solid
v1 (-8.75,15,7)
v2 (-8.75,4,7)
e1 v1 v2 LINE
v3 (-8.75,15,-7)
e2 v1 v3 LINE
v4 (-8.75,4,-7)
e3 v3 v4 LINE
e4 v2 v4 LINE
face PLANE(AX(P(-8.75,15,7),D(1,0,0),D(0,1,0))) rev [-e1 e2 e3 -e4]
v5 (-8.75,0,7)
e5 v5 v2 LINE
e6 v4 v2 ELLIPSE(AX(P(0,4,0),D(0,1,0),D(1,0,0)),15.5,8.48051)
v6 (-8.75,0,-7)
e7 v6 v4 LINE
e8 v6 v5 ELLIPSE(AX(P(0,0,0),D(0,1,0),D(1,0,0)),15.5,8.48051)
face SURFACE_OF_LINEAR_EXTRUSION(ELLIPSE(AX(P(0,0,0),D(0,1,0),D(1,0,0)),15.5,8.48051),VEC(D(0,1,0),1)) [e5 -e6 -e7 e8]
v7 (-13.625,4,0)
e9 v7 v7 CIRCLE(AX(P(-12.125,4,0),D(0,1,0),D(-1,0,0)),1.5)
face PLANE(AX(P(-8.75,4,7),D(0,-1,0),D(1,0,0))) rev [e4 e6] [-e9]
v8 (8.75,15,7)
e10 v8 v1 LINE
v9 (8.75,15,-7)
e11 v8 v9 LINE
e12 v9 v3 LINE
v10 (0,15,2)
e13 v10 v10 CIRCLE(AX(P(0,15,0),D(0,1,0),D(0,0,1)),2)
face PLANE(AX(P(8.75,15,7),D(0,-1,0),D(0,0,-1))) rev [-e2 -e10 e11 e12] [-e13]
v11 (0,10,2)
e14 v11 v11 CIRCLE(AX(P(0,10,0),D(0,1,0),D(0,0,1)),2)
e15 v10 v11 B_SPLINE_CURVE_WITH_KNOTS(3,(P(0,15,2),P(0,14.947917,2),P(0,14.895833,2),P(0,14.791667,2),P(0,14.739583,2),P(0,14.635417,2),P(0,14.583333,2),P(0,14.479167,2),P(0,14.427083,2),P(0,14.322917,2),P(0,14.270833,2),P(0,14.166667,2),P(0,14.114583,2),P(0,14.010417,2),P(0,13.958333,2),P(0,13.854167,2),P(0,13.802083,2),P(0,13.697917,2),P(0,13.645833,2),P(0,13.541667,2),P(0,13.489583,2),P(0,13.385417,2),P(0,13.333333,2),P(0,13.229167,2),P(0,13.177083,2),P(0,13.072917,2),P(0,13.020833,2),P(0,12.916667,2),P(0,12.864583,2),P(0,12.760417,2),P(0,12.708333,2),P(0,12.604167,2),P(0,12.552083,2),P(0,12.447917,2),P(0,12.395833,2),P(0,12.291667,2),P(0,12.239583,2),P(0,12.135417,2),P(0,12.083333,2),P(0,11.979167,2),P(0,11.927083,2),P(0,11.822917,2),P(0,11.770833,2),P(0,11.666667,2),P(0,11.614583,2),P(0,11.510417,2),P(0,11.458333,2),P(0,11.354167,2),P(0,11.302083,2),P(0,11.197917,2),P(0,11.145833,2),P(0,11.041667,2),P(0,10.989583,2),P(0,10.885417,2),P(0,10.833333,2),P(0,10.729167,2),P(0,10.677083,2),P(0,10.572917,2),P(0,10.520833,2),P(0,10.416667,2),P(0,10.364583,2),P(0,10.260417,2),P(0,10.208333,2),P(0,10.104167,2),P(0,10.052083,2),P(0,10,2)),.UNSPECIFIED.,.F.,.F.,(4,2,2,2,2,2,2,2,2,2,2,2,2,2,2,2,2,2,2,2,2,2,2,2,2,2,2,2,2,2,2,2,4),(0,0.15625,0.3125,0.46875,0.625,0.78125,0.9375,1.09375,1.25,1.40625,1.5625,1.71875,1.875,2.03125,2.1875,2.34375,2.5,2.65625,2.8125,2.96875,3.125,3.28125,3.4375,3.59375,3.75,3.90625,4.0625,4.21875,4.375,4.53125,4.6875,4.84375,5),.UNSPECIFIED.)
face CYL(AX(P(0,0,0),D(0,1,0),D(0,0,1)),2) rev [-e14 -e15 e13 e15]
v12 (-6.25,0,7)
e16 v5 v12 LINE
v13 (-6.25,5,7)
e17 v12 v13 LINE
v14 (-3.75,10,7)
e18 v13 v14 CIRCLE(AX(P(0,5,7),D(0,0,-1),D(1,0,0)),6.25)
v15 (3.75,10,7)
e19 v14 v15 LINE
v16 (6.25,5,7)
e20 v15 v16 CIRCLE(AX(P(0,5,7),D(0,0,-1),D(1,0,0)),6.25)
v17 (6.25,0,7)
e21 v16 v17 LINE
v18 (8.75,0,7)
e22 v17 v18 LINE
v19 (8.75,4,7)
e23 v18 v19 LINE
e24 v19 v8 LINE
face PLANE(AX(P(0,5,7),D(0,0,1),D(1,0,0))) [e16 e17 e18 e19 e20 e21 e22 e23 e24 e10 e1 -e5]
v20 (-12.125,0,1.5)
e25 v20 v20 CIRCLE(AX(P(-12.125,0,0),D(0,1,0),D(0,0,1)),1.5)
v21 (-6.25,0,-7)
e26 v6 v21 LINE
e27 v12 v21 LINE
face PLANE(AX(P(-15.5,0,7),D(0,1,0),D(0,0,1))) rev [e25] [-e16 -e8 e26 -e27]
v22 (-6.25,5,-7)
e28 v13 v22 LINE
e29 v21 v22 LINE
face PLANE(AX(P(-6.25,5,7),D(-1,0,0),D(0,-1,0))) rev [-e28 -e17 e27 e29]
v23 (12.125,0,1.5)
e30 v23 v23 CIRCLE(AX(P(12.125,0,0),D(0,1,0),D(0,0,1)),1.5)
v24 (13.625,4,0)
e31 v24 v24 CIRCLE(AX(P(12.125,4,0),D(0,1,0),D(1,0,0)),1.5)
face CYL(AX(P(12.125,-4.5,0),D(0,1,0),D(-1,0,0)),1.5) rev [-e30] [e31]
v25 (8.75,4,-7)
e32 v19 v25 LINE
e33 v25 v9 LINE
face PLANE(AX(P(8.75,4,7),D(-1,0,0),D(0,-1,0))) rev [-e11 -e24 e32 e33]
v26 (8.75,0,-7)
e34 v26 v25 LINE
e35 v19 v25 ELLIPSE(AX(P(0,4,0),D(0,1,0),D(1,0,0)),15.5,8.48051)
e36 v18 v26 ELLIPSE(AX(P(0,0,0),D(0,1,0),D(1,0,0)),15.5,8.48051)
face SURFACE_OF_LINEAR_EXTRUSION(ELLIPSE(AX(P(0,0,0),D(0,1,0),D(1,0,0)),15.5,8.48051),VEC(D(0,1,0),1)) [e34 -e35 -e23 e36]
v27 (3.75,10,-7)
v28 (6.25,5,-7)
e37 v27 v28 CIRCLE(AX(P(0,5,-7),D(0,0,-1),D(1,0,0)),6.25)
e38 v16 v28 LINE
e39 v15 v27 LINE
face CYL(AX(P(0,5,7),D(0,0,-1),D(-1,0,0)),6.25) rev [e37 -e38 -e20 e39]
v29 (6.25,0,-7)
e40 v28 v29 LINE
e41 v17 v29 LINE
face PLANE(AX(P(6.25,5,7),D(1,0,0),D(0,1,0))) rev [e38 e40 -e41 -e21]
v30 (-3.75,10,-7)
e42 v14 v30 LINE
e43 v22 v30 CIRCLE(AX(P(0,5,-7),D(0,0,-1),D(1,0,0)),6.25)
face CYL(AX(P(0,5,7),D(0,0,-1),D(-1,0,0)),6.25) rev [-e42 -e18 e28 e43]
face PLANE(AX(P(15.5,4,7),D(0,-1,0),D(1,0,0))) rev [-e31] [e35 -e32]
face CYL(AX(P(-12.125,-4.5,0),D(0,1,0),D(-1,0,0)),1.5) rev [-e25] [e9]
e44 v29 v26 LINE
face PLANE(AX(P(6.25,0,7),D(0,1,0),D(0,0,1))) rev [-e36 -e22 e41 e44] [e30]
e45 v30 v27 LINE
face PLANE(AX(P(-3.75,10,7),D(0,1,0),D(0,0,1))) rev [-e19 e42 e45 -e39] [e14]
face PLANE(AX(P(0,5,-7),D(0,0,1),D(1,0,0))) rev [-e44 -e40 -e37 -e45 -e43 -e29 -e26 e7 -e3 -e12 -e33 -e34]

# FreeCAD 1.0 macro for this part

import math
import FreeCAD as App
import Part
import Sketcher
Q = App.Units.Quantity

doc = App.newDocument("Part")
body = doc.addObject("PartDesign::Body", "Body")

# Sketch on XY plane
sketch1 = doc.addObject("Sketcher::SketchObject", "Sketch")
body.addObject(sketch1)
sketch1.AttachmentSupport = (doc.XY_Plane, [""])
sketch1.MapMode = "FlatFace"
sketch1.addGeometry([
    Part.LineSegment(App.Vector(-15.5, 0, 0), App.Vector(-6.25, 0, 0)),  # 0
    Part.LineSegment(App.Vector(-6.25, 0, 0), App.Vector(-6.25, 5, 0)),  # 1
    Part.ArcOfCircle(Part.Circle(App.Vector(0, 5, 0), App.Vector(0, 0, 1), 6.25), math.radians(126.869898), math.radians(180)),  # 2
    Part.LineSegment(App.Vector(-3.75, 10, 0), App.Vector(3.75, 10, 0)),  # 3
    Part.ArcOfCircle(Part.Circle(App.Vector(0, 5, 0), App.Vector(0, 0, 1), 6.25), math.radians(0), math.radians(53.130102)),  # 4
    Part.LineSegment(App.Vector(6.25, 5, 0), App.Vector(6.25, 0, 0)),  # 5
    Part.LineSegment(App.Vector(6.25, 0, 0), App.Vector(15.5, 0, 0)),  # 6
    Part.LineSegment(App.Vector(15.5, 0, 0), App.Vector(15.5, 4, 0)),  # 7
    Part.LineSegment(App.Vector(15.5, 4, 0), App.Vector(8.75, 4, 0)),  # 8
    Part.LineSegment(App.Vector(8.75, 4, 0), App.Vector(8.75, 15, 0)),  # 9
    Part.LineSegment(App.Vector(8.75, 15, 0), App.Vector(-8.75, 15, 0)),  # 10
    Part.LineSegment(App.Vector(-8.75, 15, 0), App.Vector(-8.75, 4, 0)),  # 11
    Part.LineSegment(App.Vector(-8.75, 4, 0), App.Vector(-15.5, 4, 0)),  # 12
    Part.LineSegment(App.Vector(-15.5, 4, 0), App.Vector(-15.5, 0, 0)),  # 13
], False)
sketch1.addConstraint([
    Sketcher.Constraint("Coincident", 0, 2, 1, 1),
    Sketcher.Constraint("Tangent", 1, 2, 2, 2),
    Sketcher.Constraint("Coincident", 2, 1, 3, 1),
    Sketcher.Constraint("Coincident", 3, 2, 4, 2),
    Sketcher.Constraint("Tangent", 4, 1, 5, 1),
    Sketcher.Constraint("Coincident", 5, 2, 6, 1),
    Sketcher.Constraint("Coincident", 6, 2, 7, 1),
    Sketcher.Constraint("Coincident", 7, 2, 8, 1),
    Sketcher.Constraint("Coincident", 8, 2, 9, 1),
    Sketcher.Constraint("Coincident", 9, 2, 10, 1),
    Sketcher.Constraint("Coincident", 10, 2, 11, 1),
    Sketcher.Constraint("Coincident", 11, 2, 12, 1),
    Sketcher.Constraint("Coincident", 12, 2, 13, 1),
    Sketcher.Constraint("Coincident", 13, 2, 0, 1),
    Sketcher.Constraint("Horizontal", 0),
    Sketcher.Constraint("Vertical", 1),
    Sketcher.Constraint("Horizontal", 3),
    Sketcher.Constraint("Vertical", 5),
    Sketcher.Constraint("Horizontal", 6),
    Sketcher.Constraint("Vertical", 7),
    Sketcher.Constraint("Horizontal", 8),
    Sketcher.Constraint("Vertical", 9),
    Sketcher.Constraint("Horizontal", 10),
    Sketcher.Constraint("Vertical", 11),
    Sketcher.Constraint("Horizontal", 12),
    Sketcher.Constraint("Vertical", 13),
    Sketcher.Constraint("Coincident", 4, 3, 2, 3),
    Sketcher.Constraint("Equal", 2, 4),
    Sketcher.Constraint("Symmetric", 0, 2, 5, 2, -1, 1),
    Sketcher.Constraint("Symmetric", 8, 2, 11, 2, -2),
    Sketcher.Constraint("Symmetric", 6, 2, 13, 2, -2),
    Sketcher.Constraint("DistanceY", 1, 1, 1, 2, Q("5 mm")),
    Sketcher.Constraint("DistanceY", 7, 1, 7, 2, Q("4 mm")),
    Sketcher.Constraint("DistanceY", 9, 1, 9, 2, Q("11 mm")),
    Sketcher.Constraint("Radius", 2, Q("6.25 mm")),
    Sketcher.Constraint("DistanceX", 3, 1, 3, 2, Q("7.5 mm")),
    Sketcher.Constraint("DistanceX", 10, 2, 10, 1, Q("17.5 mm")),
    Sketcher.Constraint("DistanceX", 0, 1, 0, 2, Q("9.25 mm")),
])
pad1 = doc.addObject("PartDesign::Pad", "Pad")
body.addObject(pad1)
pad1.Profile = sketch1
pad1.Length = 14
pad1.Midplane = True

# Sketch on XZ plane
sketch2 = doc.addObject("Sketcher::SketchObject", "Sketch001")
body.addObject(sketch2)
sketch2.AttachmentSupport = (doc.XZ_Plane, [""])
sketch2.MapMode = "FlatFace"
sketch2.AttachmentOffset = App.Placement(App.Vector(0, 0, -4), App.Rotation())
sketch2.addGeometry([
    Part.Circle(App.Vector(-12.125, 0, 0), App.Vector(0, 0, 1), 1.5),
    Part.Circle(App.Vector(12.125, 0, 0), App.Vector(0, 0, 1), 1.5),
], False)
sketch2.addConstraint([
    Sketcher.Constraint("Equal", 0, 1),
    Sketcher.Constraint("Symmetric", 0, 3, 1, 3, -1, 1),
    Sketcher.Constraint("PointOnObject", 0, 3, -1),
    Sketcher.Constraint("Diameter", 0, Q("3 mm")),
    Sketcher.Constraint("DistanceX", 0, 3, 1, 3, Q("24.25 mm")),
])
pocket1 = doc.addObject("PartDesign::Pocket", "Pocket")
body.addObject(pocket1)
pocket1.Profile = sketch2
pocket1.Length = 8.5
pocket1.Reversed = True

# Sketch on XZ plane
sketch3 = doc.addObject("Sketcher::SketchObject", "Sketch002")
body.addObject(sketch3)
sketch3.AttachmentSupport = (doc.XZ_Plane, [""])
sketch3.MapMode = "FlatFace"
sketch3.AttachmentOffset = App.Placement(App.Vector(0, 0, -15), App.Rotation())
sketch3.addGeometry(Part.Circle(App.Vector(0, 0, 0), App.Vector(0, 0, 1), 2), False)
sketch3.addConstraint([
    Sketcher.Constraint("Coincident", 0, 3, -1, 1),
    Sketcher.Constraint("Diameter", 0, Q("4 mm")),
])
pocket2 = doc.addObject("PartDesign::Pocket", "Pocket001")
body.addObject(pocket2)
pocket2.Profile = sketch3
pocket2.Type = "ThroughAll"
pocket2.Reversed = True

# Sketch on XZ plane
sketch4 = doc.addObject("Sketcher::SketchObject", "Sketch003")
body.addObject(sketch4)
sketch4.AttachmentSupport = (doc.XZ_Plane, [""])
sketch4.MapMode = "FlatFace"
sketch4.AttachmentOffset = App.Placement(App.Vector(0, 0, -4), App.Rotation())
sketch4.addGeometry([
    Part.BSplineCurve([App.Vector(-8.75, -7, 0), App.Vector(-15.5, -4.474227, 0), App.Vector(-15.5, 0, 0)], [3, 3], [2.170643252, 3.14159265], False, 2, [1, 0.884453541, 1], False),  # 0
    Part.LineSegment(App.Vector(-8.75, -7, 0), App.Vector(-15.5, -7, 0)),  # 1
    Part.LineSegment(App.Vector(-15.5, -7, 0), App.Vector(-15.5, 0, 0)),  # 2
    Part.LineSegment(App.Vector(15.5, -7, 0), App.Vector(8.75, -7, 0)),  # 3
    Part.BSplineCurve([App.Vector(15.5, 0, 0), App.Vector(15.5, -4.474227, 0), App.Vector(8.75, -7, 0)], [3, 3], [0, 0.970949401], False, 2, [1, 0.88445354, 1], False),  # 4
    Part.LineSegment(App.Vector(15.5, 0, 0), App.Vector(15.5, -7, 0)),  # 5
    Part.BSplineCurve([App.Vector(-15.5, 0, 0), App.Vector(-15.5, 4.474227, 0), App.Vector(-8.75, 7, 0)], [3, 3], [3.14159265, 4.112542055], False, 2, [1, 0.884453539, 1], False),  # 6
    Part.LineSegment(App.Vector(-15.5, 0, 0), App.Vector(-15.5, 7, 0)),  # 7
    Part.LineSegment(App.Vector(-15.5, 7, 0), App.Vector(-8.75, 7, 0)),  # 8
    Part.LineSegment(App.Vector(15.5, 7, 0), App.Vector(15.5, 0, 0)),  # 9
    Part.BSplineCurve([App.Vector(8.75, 7, 0), App.Vector(15.5, 4.474227, 0), App.Vector(15.5, 0, 0)], [3, 3], [5.312235906, 6.283185307], False, 2, [1, 0.88445354, 1], False),  # 10
    Part.LineSegment(App.Vector(8.75, 7, 0), App.Vector(15.5, 7, 0)),  # 11
], False)
sketch4.addConstraint([
    Sketcher.Constraint("Block", 0),
    Sketcher.Constraint("Block", 4),
    Sketcher.Constraint("Block", 6),
    Sketcher.Constraint("Block", 10),
    Sketcher.Constraint("Coincident", 0, 1, 1, 1),
    Sketcher.Constraint("Coincident", 1, 2, 2, 1),
    Sketcher.Constraint("Coincident", 2, 2, 0, 2),
    Sketcher.Constraint("Coincident", 3, 2, 4, 2),
    Sketcher.Constraint("Coincident", 4, 1, 5, 1),
    Sketcher.Constraint("Coincident", 5, 2, 3, 1),
    Sketcher.Constraint("Coincident", 6, 1, 7, 1),
    Sketcher.Constraint("Coincident", 7, 2, 8, 1),
    Sketcher.Constraint("Coincident", 8, 2, 6, 2),
    Sketcher.Constraint("Coincident", 9, 2, 10, 2),
    Sketcher.Constraint("Coincident", 10, 1, 11, 1),
    Sketcher.Constraint("Coincident", 11, 2, 9, 1),
    Sketcher.Constraint("Horizontal", 1),
    Sketcher.Constraint("Vertical", 2),
    Sketcher.Constraint("Horizontal", 3),
    Sketcher.Constraint("Vertical", 5),
    Sketcher.Constraint("Vertical", 7),
    Sketcher.Constraint("Horizontal", 8),
    Sketcher.Constraint("Vertical", 9),
    Sketcher.Constraint("Horizontal", 11),
])
pocket3 = doc.addObject("PartDesign::Pocket", "Pocket002")
body.addObject(pocket3)
pocket3.Profile = sketch4
pocket3.Type = "ThroughAll"
pocket3.Reversed = True

doc.recompute()
